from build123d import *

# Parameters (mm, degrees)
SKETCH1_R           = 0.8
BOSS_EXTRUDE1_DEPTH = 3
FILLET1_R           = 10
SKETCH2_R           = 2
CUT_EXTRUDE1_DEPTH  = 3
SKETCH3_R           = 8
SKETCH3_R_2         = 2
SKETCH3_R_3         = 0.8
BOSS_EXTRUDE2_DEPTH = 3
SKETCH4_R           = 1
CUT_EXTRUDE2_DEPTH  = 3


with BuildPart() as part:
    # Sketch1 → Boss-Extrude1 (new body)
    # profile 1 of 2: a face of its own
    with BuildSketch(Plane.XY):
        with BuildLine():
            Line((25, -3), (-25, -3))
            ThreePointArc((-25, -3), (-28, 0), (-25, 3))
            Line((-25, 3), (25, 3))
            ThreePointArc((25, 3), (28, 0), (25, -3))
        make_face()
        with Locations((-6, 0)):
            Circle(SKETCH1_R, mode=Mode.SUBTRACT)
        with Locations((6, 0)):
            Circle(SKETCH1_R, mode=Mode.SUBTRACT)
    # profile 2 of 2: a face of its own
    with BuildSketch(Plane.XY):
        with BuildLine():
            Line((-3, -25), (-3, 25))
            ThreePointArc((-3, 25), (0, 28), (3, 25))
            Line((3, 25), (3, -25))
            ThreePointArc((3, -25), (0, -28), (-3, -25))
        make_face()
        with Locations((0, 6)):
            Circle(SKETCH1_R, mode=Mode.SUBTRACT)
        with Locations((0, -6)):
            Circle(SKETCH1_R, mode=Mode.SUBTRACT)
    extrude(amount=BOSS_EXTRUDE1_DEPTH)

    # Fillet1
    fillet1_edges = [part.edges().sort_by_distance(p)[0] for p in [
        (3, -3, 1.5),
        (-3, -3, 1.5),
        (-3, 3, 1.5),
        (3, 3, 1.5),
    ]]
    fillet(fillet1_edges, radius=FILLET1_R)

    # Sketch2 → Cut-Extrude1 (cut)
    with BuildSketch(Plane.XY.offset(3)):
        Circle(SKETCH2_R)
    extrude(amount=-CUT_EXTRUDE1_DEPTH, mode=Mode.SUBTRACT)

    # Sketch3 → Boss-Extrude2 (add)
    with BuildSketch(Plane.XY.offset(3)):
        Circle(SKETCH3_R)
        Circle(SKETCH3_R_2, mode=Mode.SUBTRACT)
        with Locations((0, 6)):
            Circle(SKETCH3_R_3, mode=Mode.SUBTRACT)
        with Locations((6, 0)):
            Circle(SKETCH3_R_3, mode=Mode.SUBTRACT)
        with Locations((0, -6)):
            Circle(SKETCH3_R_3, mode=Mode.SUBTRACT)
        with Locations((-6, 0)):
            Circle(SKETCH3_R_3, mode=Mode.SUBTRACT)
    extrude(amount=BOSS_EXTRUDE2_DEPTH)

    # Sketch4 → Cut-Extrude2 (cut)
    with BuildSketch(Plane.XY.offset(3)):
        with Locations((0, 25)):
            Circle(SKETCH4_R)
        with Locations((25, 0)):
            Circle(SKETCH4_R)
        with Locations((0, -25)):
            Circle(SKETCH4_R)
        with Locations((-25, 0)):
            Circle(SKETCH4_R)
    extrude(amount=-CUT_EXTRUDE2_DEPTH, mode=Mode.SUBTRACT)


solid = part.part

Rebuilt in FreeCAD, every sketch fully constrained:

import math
import FreeCAD as App
import Part
import Sketcher
from FreeCAD import Vector


def edges_at(feature, points):
    """Names of the edges that pass closest to the given points."""
    edges = feature.Shape.Edges
    near = lambda p: min(range(len(edges)), key=lambda i: edges[i].distToShape(Part.Vertex(*p))[0])
    return sorted({f"Edge{near(p) + 1}" for p in points})

doc = App.newDocument("Part")
body = doc.addObject("PartDesign::Body", "Body")

# Sketch on XY plane
sketch1 = doc.addObject("Sketcher::SketchObject", "Sketch")
body.addObject(sketch1)
sketch1.AttachmentSupport = (doc.XY_Plane, [""])
sketch1.MapMode = "FlatFace"
sketch1.addGeometry(Part.ArcOfCircle(Part.Circle(Vector(25, 0, 0), Vector(0, 0, 1), 3), math.radians(-90), math.radians(90)), False)
sketch1.addGeometry(Part.LineSegment(Vector(25, 3, 0), Vector(3, 3, 0)), False)
sketch1.addGeometry(Part.LineSegment(Vector(3, 3, 0), Vector(3, 25, 0)), False)
sketch1.addGeometry(Part.ArcOfCircle(Part.Circle(Vector(0, 25, 0), Vector(0, 0, 1), 3), math.radians(0), math.radians(180)), False)
sketch1.addGeometry(Part.LineSegment(Vector(-3, 25, 0), Vector(-3, 3, 0)), False)
sketch1.addGeometry(Part.LineSegment(Vector(-3, 3, 0), Vector(-25, 3, 0)), False)
sketch1.addGeometry(Part.ArcOfCircle(Part.Circle(Vector(-25, 0, 0), Vector(0, 0, 1), 3), math.radians(90), math.radians(270)), False)
sketch1.addGeometry(Part.LineSegment(Vector(-25, -3, 0), Vector(-3, -3, 0)), False)
sketch1.addGeometry(Part.LineSegment(Vector(-3, -3, 0), Vector(-3, -25, 0)), False)
sketch1.addGeometry(Part.ArcOfCircle(Part.Circle(Vector(0, -25, 0), Vector(0, 0, 1), 3), math.radians(180), math.radians(360)), False)
sketch1.addGeometry(Part.LineSegment(Vector(3, -25, 0), Vector(3, -3, 0)), False)
sketch1.addGeometry(Part.LineSegment(Vector(3, -3, 0), Vector(25, -3, 0)), False)
sketch1.addGeometry(Part.Circle(Vector(6, 0, 0), Vector(0, 0, 1), 0.8), False)
sketch1.addGeometry(Part.Circle(Vector(0, -6, 0), Vector(0, 0, 1), 0.8), False)
sketch1.addGeometry(Part.Circle(Vector(0, 6, 0), Vector(0, 0, 1), 0.8), False)
sketch1.addGeometry(Part.Circle(Vector(-6, 0, 0), Vector(0, 0, 1), 0.8), False)
sketch1.addConstraint(Sketcher.Constraint("Tangent", 0, 2, 1, 1))
sketch1.addConstraint(Sketcher.Constraint("Coincident", 1, 2, 2, 1))
sketch1.addConstraint(Sketcher.Constraint("Tangent", 2, 2, 3, 1))
sketch1.addConstraint(Sketcher.Constraint("Tangent", 3, 2, 4, 1))
sketch1.addConstraint(Sketcher.Constraint("Coincident", 4, 2, 5, 1))
sketch1.addConstraint(Sketcher.Constraint("Tangent", 5, 2, 6, 1))
sketch1.addConstraint(Sketcher.Constraint("Tangent", 6, 2, 7, 1))
sketch1.addConstraint(Sketcher.Constraint("Coincident", 7, 2, 8, 1))
sketch1.addConstraint(Sketcher.Constraint("Tangent", 8, 2, 9, 1))
sketch1.addConstraint(Sketcher.Constraint("Tangent", 9, 2, 10, 1))
sketch1.addConstraint(Sketcher.Constraint("Coincident", 10, 2, 11, 1))
sketch1.addConstraint(Sketcher.Constraint("Tangent", 11, 2, 0, 1))
sketch1.addConstraint(Sketcher.Constraint("Horizontal", 1))
sketch1.addConstraint(Sketcher.Constraint("Vertical", 2))
sketch1.addConstraint(Sketcher.Constraint("Vertical", 4))
sketch1.addConstraint(Sketcher.Constraint("Horizontal", 5))
sketch1.addConstraint(Sketcher.Constraint("Horizontal", 7))
sketch1.addConstraint(Sketcher.Constraint("Vertical", 8))
sketch1.addConstraint(Sketcher.Constraint("Vertical", 10))
sketch1.addConstraint(Sketcher.Constraint("Horizontal", 11))
sketch1.addConstraint(Sketcher.Constraint("Equal", 0, 3))
sketch1.addConstraint(Sketcher.Constraint("Equal", 3, 6))
sketch1.addConstraint(Sketcher.Constraint("Equal", 6, 9))
sketch1.addConstraint(Sketcher.Constraint("Equal", 12, 13))
sketch1.addConstraint(Sketcher.Constraint("Equal", 13, 14))
sketch1.addConstraint(Sketcher.Constraint("Equal", 14, 15))
sketch1.addConstraint(Sketcher.Constraint("Symmetric", 0, 3, 6, 3, -1, 1))
sketch1.addConstraint(Sketcher.Constraint("Symmetric", 3, 3, 9, 3, -1, 1))
sketch1.addConstraint(Sketcher.Constraint("Symmetric", 13, 3, 14, 3, -1, 1))
sketch1.addConstraint(Sketcher.Constraint("Symmetric", 12, 3, 15, 3, -1, 1))
sketch1.addConstraint(Sketcher.Constraint("Symmetric", 1, 2, 4, 2, -2))
sketch1.addConstraint(Sketcher.Constraint("PointOnObject", 12, 3, -1))
sketch1.addConstraint(Sketcher.Constraint("PointOnObject", 13, 3, -2))
sketch1.addConstraint(Sketcher.Constraint("Equal", 11, 2))
sketch1.addConstraint(Sketcher.Constraint("Radius", 0, 3.0))
sketch1.addConstraint(Sketcher.Constraint("Diameter", 12, 1.6))
sketch1.addConstraint(Sketcher.Constraint("DistanceX", 1, 2, 1, 1, 22.0))
sketch1.addConstraint(Sketcher.Constraint("DistanceX", -1, 1, 12, 3, 6.0))
sketch1.addConstraint(Sketcher.Constraint("DistanceY", 13, 3, -1, 1, 6.0))
pad1 = doc.addObject("PartDesign::Pad", "Pad")
body.addObject(pad1)
pad1.Profile = sketch1
pad1.Length = 3
doc.recompute()

fillet = doc.addObject("PartDesign::Fillet", "Fillet")
body.addObject(fillet)
fillet.Base = (pad1, edges_at(pad1, [
    (3, -3, 1.5),
    (-3, -3, 1.5),
    (-3, 3, 1.5),
    (3, 3, 1.5),
]))
fillet.Radius = 10

# Sketch on XY plane
sketch2 = doc.addObject("Sketcher::SketchObject", "Sketch001")
body.addObject(sketch2)
sketch2.AttachmentSupport = (doc.XY_Plane, [""])
sketch2.MapMode = "FlatFace"
sketch2.AttachmentOffset = App.Placement(Vector(0, 0, 3), App.Rotation())
sketch2.addGeometry(Part.Circle(Vector(0, 0, 0), Vector(0, 0, 1), 2), False)
sketch2.addConstraint(Sketcher.Constraint("Coincident", 0, 3, -1, 1))
sketch2.addConstraint(Sketcher.Constraint("Diameter", 0, 4.0))
pocket1 = doc.addObject("PartDesign::Pocket", "Pocket")
body.addObject(pocket1)
pocket1.Profile = sketch2
pocket1.Length = 3

# Sketch on XY plane
sketch3 = doc.addObject("Sketcher::SketchObject", "Sketch002")
body.addObject(sketch3)
sketch3.AttachmentSupport = (doc.XY_Plane, [""])
sketch3.MapMode = "FlatFace"
sketch3.AttachmentOffset = App.Placement(Vector(0, 0, 3), App.Rotation())
sketch3.addGeometry(Part.Circle(Vector(0, 0, 0), Vector(0, 0, 1), 8), False)
sketch3.addGeometry(Part.Circle(Vector(0, -6, 0), Vector(0, 0, 1), 0.8), False)
sketch3.addGeometry(Part.Circle(Vector(-6, 0, 0), Vector(0, 0, 1), 0.8), False)
sketch3.addGeometry(Part.Circle(Vector(0, 0, 0), Vector(0, 0, 1), 2), False)
sketch3.addGeometry(Part.Circle(Vector(6, 0, 0), Vector(0, 0, 1), 0.8), False)
sketch3.addGeometry(Part.Circle(Vector(0, 6, 0), Vector(0, 0, 1), 0.8), False)
sketch3.addConstraint(Sketcher.Constraint("Coincident", 0, 3, -1, 1))
sketch3.addConstraint(Sketcher.Constraint("Coincident", 3, 3, -1, 1))
sketch3.addConstraint(Sketcher.Constraint("Equal", 1, 2))
sketch3.addConstraint(Sketcher.Constraint("Equal", 2, 4))
sketch3.addConstraint(Sketcher.Constraint("Equal", 4, 5))
sketch3.addConstraint(Sketcher.Constraint("Symmetric", 2, 3, 4, 3, -1, 1))
sketch3.addConstraint(Sketcher.Constraint("Symmetric", 1, 3, 5, 3, -1, 1))
sketch3.addConstraint(Sketcher.Constraint("PointOnObject", 1, 3, -2))
sketch3.addConstraint(Sketcher.Constraint("PointOnObject", 2, 3, -1))
sketch3.addConstraint(Sketcher.Constraint("Diameter", 0, 16.0))
sketch3.addConstraint(Sketcher.Constraint("Diameter", 3, 4.0))
sketch3.addConstraint(Sketcher.Constraint("Diameter", 1, 1.6))
sketch3.addConstraint(Sketcher.Constraint("DistanceY", 1, 3, -1, 1, 6.0))
sketch3.addConstraint(Sketcher.Constraint("DistanceX", 2, 3, -1, 1, 6.0))
pad2 = doc.addObject("PartDesign::Pad", "Pad001")
body.addObject(pad2)
pad2.Profile = sketch3
pad2.Length = 3

# Sketch on XY plane
sketch4 = doc.addObject("Sketcher::SketchObject", "Sketch003")
body.addObject(sketch4)
sketch4.AttachmentSupport = (doc.XY_Plane, [""])
sketch4.MapMode = "FlatFace"
sketch4.AttachmentOffset = App.Placement(Vector(0, 0, 3), App.Rotation())
sketch4.addGeometry(Part.Circle(Vector(0, 25, 0), Vector(0, 0, 1), 1), False)
sketch4.addGeometry(Part.Circle(Vector(25, 0, 0), Vector(0, 0, 1), 1), False)
sketch4.addGeometry(Part.Circle(Vector(0, -25, 0), Vector(0, 0, 1), 1), False)
sketch4.addGeometry(Part.Circle(Vector(-25, 0, 0), Vector(0, 0, 1), 1), False)
sketch4.addConstraint(Sketcher.Constraint("Equal", 0, 1))
sketch4.addConstraint(Sketcher.Constraint("Equal", 1, 2))
sketch4.addConstraint(Sketcher.Constraint("Equal", 2, 3))
sketch4.addConstraint(Sketcher.Constraint("Symmetric", 0, 3, 2, 3, -1, 1))
sketch4.addConstraint(Sketcher.Constraint("Symmetric", 1, 3, 3, 3, -1, 1))
sketch4.addConstraint(Sketcher.Constraint("PointOnObject", 0, 3, -2))
sketch4.addConstraint(Sketcher.Constraint("PointOnObject", 1, 3, -1))
sketch4.addConstraint(Sketcher.Constraint("Diameter", 0, 2.0))
sketch4.addConstraint(Sketcher.Constraint("DistanceY", -1, 1, 0, 3, 25.0))
sketch4.addConstraint(Sketcher.Constraint("DistanceX", -1, 1, 1, 3, 25.0))
pocket2 = doc.addObject("PartDesign::Pocket", "Pocket001")
body.addObject(pocket2)
pocket2.Profile = sketch4
pocket2.Length = 3

doc.recompute()
